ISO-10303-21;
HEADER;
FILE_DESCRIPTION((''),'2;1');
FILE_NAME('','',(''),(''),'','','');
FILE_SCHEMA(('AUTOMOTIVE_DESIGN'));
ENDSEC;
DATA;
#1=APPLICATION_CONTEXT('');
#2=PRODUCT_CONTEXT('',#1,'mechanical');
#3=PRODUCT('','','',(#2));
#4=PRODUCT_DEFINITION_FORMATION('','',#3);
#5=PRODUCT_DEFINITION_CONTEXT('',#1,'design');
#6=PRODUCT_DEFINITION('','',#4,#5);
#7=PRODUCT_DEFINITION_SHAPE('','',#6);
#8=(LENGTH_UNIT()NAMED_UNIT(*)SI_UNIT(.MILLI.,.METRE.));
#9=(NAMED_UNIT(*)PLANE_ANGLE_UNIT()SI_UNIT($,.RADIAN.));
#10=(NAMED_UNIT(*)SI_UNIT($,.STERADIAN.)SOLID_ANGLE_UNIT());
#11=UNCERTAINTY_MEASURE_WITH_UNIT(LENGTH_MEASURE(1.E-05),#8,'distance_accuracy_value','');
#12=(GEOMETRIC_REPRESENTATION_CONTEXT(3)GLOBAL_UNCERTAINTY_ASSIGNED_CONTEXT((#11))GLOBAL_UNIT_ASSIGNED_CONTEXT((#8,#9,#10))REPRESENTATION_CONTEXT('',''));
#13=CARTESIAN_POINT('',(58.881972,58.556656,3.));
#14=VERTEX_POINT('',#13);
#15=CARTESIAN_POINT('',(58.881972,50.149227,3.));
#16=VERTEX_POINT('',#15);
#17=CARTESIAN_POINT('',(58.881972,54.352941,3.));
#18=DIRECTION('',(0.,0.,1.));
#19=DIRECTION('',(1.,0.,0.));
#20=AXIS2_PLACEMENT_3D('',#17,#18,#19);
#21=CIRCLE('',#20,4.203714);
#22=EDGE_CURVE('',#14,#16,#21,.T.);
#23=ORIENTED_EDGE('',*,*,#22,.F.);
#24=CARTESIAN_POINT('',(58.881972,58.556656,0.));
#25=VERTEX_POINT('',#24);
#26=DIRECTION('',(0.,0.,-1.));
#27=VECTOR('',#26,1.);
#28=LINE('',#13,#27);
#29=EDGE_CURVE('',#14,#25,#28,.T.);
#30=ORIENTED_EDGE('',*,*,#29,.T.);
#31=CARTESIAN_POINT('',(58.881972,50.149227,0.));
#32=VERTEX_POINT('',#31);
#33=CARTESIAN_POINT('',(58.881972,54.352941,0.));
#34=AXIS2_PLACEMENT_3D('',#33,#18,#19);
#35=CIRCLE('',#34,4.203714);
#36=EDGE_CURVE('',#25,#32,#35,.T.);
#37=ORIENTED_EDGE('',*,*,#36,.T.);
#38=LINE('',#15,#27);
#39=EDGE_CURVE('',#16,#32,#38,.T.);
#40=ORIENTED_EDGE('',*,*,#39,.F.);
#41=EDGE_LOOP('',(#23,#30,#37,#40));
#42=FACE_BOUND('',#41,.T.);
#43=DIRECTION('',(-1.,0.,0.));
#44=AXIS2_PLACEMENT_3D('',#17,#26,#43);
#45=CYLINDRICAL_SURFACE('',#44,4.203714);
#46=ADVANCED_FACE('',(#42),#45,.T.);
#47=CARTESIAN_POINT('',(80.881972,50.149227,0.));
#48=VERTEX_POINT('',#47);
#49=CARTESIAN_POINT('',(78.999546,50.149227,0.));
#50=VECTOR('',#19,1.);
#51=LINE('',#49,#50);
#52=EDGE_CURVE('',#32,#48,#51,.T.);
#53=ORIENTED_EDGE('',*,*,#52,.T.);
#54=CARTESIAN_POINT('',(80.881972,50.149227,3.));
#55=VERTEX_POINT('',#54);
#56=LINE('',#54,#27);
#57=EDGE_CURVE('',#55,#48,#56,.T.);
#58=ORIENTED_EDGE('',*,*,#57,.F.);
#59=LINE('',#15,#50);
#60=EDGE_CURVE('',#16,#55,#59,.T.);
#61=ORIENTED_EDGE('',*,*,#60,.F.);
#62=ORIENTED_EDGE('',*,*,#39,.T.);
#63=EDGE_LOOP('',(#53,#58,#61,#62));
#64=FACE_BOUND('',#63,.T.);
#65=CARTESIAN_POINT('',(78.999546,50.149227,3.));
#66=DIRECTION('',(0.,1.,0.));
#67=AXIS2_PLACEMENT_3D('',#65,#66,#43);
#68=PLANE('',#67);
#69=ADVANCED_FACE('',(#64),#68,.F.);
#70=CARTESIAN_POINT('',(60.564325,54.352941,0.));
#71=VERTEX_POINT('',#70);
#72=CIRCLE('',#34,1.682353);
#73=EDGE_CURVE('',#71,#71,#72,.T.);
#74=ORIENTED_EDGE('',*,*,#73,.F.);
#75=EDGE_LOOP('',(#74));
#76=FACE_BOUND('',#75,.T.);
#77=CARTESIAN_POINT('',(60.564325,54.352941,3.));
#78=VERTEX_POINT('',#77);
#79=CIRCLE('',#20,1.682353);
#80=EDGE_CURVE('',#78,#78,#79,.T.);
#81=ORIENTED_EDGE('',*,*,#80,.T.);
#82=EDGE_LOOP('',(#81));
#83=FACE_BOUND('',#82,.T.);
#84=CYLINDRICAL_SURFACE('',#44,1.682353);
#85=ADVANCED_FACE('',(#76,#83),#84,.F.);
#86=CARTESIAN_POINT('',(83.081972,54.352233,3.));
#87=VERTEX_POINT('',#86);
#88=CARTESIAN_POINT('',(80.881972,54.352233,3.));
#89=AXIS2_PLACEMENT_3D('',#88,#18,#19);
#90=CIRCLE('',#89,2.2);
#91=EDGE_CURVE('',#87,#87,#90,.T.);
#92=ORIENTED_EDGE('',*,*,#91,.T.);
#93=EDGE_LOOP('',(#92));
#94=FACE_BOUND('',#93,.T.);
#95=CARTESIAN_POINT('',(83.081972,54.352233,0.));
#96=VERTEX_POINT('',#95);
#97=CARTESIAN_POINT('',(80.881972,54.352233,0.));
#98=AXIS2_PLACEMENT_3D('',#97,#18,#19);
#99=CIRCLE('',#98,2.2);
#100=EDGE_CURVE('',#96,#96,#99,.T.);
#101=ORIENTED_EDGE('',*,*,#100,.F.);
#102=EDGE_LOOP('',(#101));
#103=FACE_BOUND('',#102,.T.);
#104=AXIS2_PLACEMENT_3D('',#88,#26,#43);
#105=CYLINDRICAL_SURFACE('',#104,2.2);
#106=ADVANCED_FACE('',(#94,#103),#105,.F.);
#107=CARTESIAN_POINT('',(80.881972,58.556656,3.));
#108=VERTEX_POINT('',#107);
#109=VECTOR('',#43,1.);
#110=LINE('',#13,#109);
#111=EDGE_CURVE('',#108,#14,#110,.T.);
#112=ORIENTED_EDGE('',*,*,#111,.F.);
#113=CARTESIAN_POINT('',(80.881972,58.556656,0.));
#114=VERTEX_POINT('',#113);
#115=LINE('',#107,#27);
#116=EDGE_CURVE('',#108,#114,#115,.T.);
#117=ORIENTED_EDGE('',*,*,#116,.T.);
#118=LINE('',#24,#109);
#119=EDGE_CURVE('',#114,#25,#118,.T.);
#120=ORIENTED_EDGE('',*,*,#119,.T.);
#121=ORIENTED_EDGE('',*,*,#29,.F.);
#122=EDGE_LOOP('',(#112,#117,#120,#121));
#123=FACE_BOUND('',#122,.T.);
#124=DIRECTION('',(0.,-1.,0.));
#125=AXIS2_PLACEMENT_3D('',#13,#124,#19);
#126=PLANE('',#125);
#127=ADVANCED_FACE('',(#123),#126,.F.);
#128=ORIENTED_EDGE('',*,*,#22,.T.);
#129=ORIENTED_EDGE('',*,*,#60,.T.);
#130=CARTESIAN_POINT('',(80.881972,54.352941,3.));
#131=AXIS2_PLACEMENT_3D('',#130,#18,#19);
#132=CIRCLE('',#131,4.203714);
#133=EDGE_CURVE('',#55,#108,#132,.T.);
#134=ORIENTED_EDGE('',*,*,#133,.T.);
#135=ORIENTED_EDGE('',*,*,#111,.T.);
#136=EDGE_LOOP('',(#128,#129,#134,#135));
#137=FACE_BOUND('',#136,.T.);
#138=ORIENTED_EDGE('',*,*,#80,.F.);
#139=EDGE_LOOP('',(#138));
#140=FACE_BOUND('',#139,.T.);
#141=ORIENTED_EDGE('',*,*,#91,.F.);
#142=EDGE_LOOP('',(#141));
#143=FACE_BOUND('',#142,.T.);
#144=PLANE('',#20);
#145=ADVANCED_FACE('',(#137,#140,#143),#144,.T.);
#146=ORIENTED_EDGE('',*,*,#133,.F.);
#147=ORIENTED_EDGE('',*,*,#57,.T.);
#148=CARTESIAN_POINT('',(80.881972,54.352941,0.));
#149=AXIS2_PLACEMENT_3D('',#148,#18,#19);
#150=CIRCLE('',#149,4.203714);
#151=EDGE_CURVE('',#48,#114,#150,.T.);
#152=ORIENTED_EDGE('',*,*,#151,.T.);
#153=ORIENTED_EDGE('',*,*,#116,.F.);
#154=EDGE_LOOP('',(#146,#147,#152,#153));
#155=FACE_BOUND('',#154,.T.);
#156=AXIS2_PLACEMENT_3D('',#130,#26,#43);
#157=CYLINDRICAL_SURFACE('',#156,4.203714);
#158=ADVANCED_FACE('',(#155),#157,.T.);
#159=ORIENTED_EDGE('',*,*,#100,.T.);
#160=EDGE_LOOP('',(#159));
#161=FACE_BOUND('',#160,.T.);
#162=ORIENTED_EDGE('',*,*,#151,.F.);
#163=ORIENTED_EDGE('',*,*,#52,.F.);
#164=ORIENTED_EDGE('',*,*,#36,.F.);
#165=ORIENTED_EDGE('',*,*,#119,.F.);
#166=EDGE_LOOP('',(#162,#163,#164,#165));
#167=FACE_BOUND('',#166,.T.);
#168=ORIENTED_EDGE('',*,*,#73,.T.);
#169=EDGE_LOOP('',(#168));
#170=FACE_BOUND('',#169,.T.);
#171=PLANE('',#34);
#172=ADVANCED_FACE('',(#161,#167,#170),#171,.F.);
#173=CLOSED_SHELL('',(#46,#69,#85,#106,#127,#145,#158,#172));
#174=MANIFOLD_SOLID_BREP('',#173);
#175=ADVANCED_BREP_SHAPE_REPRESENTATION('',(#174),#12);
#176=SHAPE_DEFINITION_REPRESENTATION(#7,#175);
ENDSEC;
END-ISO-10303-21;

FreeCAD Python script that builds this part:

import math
import FreeCAD as App
import Part
import Sketcher
from FreeCAD import Vector

doc = App.newDocument("Part")
body = doc.addObject("PartDesign::Body", "Body")

# Sketch on XY plane
sketch1 = body.newObject("Sketcher::SketchObject", "Sketch")
sketch1.AttachmentSupport = (doc.getObject("XY_Plane"), [""])
sketch1.MapMode = "FlatFace"
sketch1.addGeometry([
    Part.ArcOfCircle(Part.Circle(Vector(80.9, 54.4, 0), Vector(0, 0, 1), 4.2), math.radians(-90), math.radians(90)),  # 0
    Part.LineSegment(Vector(80.9, 58.6, 0), Vector(58.9, 58.6, 0)),  # 1
    Part.ArcOfCircle(Part.Circle(Vector(58.9, 54.4, 0), Vector(0, 0, 1), 4.2), math.radians(90), math.radians(270)),  # 2
    Part.LineSegment(Vector(58.9, 50.1, 0), Vector(80.9, 50.1, 0)),  # 3
    Part.Circle(Vector(58.9, 54.4, 0), Vector(0, 0, 1), 1.7),  # 4
    Part.Circle(Vector(80.9, 54.4, 0), Vector(0, 0, 1), 2.2),  # 5
], False)
sketch1.addConstraint([
    Sketcher.Constraint("Tangent", 0, 2, 1, 1),
    Sketcher.Constraint("Tangent", 1, 2, 2, 1),
    Sketcher.Constraint("Tangent", 2, 2, 3, 1),
    Sketcher.Constraint("Tangent", 3, 2, 0, 1),
    Sketcher.Constraint("Horizontal", 1),
    Sketcher.Constraint("Horizontal", 3),
    Sketcher.Constraint("Coincident", 4, 3, 2, 3),
    Sketcher.Constraint("Vertical", 0, 3, 5, 3),
    Sketcher.Constraint("Diameter", 5, 4.4),
    Sketcher.Constraint("DistanceX", 1, 2, 1, 1, 22.0),
    Sketcher.Constraint("Diameter", 4, 3.364706),
    Sketcher.Constraint("Radius", 0, 4.203714),
    Sketcher.Constraint("DistanceY", -1, 1, 0, 3, 54.352941),
    Sketcher.Constraint("DistanceY", 5, 3, 0, 3, 0.000708),
    Sketcher.Constraint("DistanceX", -1, 1, 0, 3, 80.881972),
])
pad1 = body.newObject("PartDesign::Pad", "Pad")
pad1.Profile = sketch1
pad1.Length = 3

doc.recompute()
